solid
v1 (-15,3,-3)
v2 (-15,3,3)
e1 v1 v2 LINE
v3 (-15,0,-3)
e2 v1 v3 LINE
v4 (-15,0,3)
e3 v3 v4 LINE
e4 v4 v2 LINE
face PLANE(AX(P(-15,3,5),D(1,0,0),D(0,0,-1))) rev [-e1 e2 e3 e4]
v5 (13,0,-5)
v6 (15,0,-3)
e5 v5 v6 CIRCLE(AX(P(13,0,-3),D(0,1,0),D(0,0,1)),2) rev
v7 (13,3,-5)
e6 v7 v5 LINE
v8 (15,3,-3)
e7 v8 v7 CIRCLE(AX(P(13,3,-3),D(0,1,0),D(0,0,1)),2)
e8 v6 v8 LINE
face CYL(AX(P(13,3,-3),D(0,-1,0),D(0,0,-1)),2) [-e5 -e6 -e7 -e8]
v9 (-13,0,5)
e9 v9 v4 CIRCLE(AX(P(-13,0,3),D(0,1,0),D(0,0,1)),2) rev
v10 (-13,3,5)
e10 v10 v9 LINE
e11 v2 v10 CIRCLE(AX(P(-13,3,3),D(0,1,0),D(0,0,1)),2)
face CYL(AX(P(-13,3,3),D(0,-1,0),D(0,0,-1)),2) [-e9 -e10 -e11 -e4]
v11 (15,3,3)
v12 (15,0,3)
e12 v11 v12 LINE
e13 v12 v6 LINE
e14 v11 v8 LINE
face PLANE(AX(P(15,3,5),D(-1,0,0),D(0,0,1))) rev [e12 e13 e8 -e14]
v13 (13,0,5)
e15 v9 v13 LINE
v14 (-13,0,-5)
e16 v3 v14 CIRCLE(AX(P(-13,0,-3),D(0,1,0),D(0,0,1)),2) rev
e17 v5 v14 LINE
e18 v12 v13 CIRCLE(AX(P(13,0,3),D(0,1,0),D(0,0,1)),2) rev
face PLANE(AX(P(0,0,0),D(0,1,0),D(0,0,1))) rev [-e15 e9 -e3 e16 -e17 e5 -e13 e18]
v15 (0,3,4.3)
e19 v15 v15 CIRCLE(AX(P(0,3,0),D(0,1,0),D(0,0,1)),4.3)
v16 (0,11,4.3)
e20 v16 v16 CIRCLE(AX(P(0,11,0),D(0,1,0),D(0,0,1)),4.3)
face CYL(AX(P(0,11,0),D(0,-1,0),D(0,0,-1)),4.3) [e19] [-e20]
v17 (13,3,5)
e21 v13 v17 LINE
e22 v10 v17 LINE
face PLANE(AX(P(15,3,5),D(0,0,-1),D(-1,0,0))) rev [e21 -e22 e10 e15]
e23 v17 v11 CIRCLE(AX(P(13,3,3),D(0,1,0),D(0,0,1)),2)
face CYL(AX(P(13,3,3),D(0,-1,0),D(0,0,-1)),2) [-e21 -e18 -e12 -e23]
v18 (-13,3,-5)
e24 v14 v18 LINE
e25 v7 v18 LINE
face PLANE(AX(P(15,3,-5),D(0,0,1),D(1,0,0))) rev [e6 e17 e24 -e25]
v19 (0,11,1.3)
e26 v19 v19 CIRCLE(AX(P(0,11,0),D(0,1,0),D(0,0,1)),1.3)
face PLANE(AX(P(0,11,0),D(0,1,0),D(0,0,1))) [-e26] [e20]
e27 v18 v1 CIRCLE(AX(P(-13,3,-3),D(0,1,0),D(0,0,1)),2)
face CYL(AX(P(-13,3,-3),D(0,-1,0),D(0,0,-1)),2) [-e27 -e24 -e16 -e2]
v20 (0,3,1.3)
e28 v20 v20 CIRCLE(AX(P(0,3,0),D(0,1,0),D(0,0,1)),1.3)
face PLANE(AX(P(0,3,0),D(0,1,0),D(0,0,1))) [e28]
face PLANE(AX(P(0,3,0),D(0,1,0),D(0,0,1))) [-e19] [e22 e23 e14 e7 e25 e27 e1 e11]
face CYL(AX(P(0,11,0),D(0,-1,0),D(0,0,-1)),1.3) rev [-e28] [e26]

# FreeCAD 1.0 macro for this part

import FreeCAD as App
import Part
import Sketcher


def edges_at(feature, points):
    """Names of the edges that pass closest to the given points."""
    edges = feature.Shape.Edges
    near = lambda p: min(range(len(edges)), key=lambda i: edges[i].distToShape(Part.Vertex(*p))[0])
    return sorted({f"Edge{near(p) + 1}" for p in points})

doc = App.newDocument("Part")
params = doc.addObject("Spreadsheet::Sheet", "Params")
for row, (alias, value) in enumerate([
    ("sketch1_width", "30 mm"),
    ("sketch1_height", "10 mm"),
    ("pad1_length", "3 mm"),
    ("sketch2_diameter", "8.6 mm"),
    ("sketch2_diameter2", "2.6 mm"),
    ("pad2_length", "8 mm"),
    ("fillet_radius", "2 mm"),
], start=1):
    params.set(f"A{row}", alias)
    params.set(f"B{row}", "=" + value)
    params.setAlias(f"B{row}", alias)

body = doc.addObject("PartDesign::Body", "Body")

sketch1 = body.newObject("Sketcher::SketchObject", "Sketch")
sketch1.AttachmentSupport = (doc.getObject("XZ_Plane"), [""])
sketch1.MapMode = "FlatFace"
sketch1.addGeometry(Part.LineSegment(App.Vector(-15, -5, 0), App.Vector(-15, 5, 0)), False)
sketch1.addGeometry(Part.LineSegment(App.Vector(-15, 5, 0), App.Vector(15, 5, 0)), False)
sketch1.addGeometry(Part.LineSegment(App.Vector(15, 5, 0), App.Vector(15, -5, 0)), False)
sketch1.addGeometry(Part.LineSegment(App.Vector(15, -5, 0), App.Vector(-15, -5, 0)), False)
sketch1.addConstraint(Sketcher.Constraint("Coincident", 0, 2, 1, 1))
sketch1.addConstraint(Sketcher.Constraint("Coincident", 1, 2, 2, 1))
sketch1.addConstraint(Sketcher.Constraint("Coincident", 2, 2, 3, 1))
sketch1.addConstraint(Sketcher.Constraint("Coincident", 3, 2, 0, 1))
sketch1.addConstraint(Sketcher.Constraint("Vertical", 0))
sketch1.addConstraint(Sketcher.Constraint("Horizontal", 1))
sketch1.addConstraint(Sketcher.Constraint("Vertical", 2))
sketch1.addConstraint(Sketcher.Constraint("Horizontal", 3))
sketch1.addConstraint(Sketcher.Constraint("Symmetric", 0, 2, 2, 2, -1, 1))
sketch1.addConstraint(Sketcher.Constraint("DistanceX", 1, 1, 1, 2, 30.0))
sketch1.addConstraint(Sketcher.Constraint("DistanceY", 0, 1, 0, 2, 10.0))
sketch1.setExpression("Constraints[9]", "Params.sketch1_width")
sketch1.setExpression("Constraints[10]", "Params.sketch1_height")
pad1 = body.newObject("PartDesign::Pad", "Pad")
pad1.Profile = sketch1
pad1.setExpression("Length", "Params.pad1_length")
pad1.Reversed = True

sketch2 = body.newObject("Sketcher::SketchObject", "Sketch001")
sketch2.AttachmentSupport = (doc.getObject("XZ_Plane"), [""])
sketch2.MapMode = "FlatFace"
sketch2.AttachmentOffset = App.Placement(App.Vector(0, 0, -3), App.Rotation())
sketch2.addGeometry(Part.Circle(App.Vector(0, 0, 0), App.Vector(0, 0, 1), 4.3), False)
sketch2.addGeometry(Part.Circle(App.Vector(0, 0, 0), App.Vector(0, 0, 1), 1.3), False)
sketch2.addConstraint(Sketcher.Constraint("Coincident", 0, 3, -1, 1))
sketch2.addConstraint(Sketcher.Constraint("Coincident", 1, 3, -1, 1))
sketch2.addConstraint(Sketcher.Constraint("Diameter", 0, 8.6))
sketch2.addConstraint(Sketcher.Constraint("Diameter", 1, 2.6))
sketch2.setExpression("Constraints[2]", "Params.sketch2_diameter")
sketch2.setExpression("Constraints[3]", "Params.sketch2_diameter2")
pad2 = body.newObject("PartDesign::Pad", "Pad001")
pad2.Profile = sketch2
pad2.setExpression("Length", "Params.pad2_length")
pad2.Reversed = True
doc.recompute()

fillet = body.newObject("PartDesign::Fillet", "Fillet")
fillet.Base = (pad2, edges_at(pad2, [
    (-15, 1.5, -5),
    (15, 1.5, -5),
    (15, 1.5, 5),
    (-15, 1.5, 5),
]))
fillet.setExpression("Radius", "Params.fillet_radius")

doc.recompute()
